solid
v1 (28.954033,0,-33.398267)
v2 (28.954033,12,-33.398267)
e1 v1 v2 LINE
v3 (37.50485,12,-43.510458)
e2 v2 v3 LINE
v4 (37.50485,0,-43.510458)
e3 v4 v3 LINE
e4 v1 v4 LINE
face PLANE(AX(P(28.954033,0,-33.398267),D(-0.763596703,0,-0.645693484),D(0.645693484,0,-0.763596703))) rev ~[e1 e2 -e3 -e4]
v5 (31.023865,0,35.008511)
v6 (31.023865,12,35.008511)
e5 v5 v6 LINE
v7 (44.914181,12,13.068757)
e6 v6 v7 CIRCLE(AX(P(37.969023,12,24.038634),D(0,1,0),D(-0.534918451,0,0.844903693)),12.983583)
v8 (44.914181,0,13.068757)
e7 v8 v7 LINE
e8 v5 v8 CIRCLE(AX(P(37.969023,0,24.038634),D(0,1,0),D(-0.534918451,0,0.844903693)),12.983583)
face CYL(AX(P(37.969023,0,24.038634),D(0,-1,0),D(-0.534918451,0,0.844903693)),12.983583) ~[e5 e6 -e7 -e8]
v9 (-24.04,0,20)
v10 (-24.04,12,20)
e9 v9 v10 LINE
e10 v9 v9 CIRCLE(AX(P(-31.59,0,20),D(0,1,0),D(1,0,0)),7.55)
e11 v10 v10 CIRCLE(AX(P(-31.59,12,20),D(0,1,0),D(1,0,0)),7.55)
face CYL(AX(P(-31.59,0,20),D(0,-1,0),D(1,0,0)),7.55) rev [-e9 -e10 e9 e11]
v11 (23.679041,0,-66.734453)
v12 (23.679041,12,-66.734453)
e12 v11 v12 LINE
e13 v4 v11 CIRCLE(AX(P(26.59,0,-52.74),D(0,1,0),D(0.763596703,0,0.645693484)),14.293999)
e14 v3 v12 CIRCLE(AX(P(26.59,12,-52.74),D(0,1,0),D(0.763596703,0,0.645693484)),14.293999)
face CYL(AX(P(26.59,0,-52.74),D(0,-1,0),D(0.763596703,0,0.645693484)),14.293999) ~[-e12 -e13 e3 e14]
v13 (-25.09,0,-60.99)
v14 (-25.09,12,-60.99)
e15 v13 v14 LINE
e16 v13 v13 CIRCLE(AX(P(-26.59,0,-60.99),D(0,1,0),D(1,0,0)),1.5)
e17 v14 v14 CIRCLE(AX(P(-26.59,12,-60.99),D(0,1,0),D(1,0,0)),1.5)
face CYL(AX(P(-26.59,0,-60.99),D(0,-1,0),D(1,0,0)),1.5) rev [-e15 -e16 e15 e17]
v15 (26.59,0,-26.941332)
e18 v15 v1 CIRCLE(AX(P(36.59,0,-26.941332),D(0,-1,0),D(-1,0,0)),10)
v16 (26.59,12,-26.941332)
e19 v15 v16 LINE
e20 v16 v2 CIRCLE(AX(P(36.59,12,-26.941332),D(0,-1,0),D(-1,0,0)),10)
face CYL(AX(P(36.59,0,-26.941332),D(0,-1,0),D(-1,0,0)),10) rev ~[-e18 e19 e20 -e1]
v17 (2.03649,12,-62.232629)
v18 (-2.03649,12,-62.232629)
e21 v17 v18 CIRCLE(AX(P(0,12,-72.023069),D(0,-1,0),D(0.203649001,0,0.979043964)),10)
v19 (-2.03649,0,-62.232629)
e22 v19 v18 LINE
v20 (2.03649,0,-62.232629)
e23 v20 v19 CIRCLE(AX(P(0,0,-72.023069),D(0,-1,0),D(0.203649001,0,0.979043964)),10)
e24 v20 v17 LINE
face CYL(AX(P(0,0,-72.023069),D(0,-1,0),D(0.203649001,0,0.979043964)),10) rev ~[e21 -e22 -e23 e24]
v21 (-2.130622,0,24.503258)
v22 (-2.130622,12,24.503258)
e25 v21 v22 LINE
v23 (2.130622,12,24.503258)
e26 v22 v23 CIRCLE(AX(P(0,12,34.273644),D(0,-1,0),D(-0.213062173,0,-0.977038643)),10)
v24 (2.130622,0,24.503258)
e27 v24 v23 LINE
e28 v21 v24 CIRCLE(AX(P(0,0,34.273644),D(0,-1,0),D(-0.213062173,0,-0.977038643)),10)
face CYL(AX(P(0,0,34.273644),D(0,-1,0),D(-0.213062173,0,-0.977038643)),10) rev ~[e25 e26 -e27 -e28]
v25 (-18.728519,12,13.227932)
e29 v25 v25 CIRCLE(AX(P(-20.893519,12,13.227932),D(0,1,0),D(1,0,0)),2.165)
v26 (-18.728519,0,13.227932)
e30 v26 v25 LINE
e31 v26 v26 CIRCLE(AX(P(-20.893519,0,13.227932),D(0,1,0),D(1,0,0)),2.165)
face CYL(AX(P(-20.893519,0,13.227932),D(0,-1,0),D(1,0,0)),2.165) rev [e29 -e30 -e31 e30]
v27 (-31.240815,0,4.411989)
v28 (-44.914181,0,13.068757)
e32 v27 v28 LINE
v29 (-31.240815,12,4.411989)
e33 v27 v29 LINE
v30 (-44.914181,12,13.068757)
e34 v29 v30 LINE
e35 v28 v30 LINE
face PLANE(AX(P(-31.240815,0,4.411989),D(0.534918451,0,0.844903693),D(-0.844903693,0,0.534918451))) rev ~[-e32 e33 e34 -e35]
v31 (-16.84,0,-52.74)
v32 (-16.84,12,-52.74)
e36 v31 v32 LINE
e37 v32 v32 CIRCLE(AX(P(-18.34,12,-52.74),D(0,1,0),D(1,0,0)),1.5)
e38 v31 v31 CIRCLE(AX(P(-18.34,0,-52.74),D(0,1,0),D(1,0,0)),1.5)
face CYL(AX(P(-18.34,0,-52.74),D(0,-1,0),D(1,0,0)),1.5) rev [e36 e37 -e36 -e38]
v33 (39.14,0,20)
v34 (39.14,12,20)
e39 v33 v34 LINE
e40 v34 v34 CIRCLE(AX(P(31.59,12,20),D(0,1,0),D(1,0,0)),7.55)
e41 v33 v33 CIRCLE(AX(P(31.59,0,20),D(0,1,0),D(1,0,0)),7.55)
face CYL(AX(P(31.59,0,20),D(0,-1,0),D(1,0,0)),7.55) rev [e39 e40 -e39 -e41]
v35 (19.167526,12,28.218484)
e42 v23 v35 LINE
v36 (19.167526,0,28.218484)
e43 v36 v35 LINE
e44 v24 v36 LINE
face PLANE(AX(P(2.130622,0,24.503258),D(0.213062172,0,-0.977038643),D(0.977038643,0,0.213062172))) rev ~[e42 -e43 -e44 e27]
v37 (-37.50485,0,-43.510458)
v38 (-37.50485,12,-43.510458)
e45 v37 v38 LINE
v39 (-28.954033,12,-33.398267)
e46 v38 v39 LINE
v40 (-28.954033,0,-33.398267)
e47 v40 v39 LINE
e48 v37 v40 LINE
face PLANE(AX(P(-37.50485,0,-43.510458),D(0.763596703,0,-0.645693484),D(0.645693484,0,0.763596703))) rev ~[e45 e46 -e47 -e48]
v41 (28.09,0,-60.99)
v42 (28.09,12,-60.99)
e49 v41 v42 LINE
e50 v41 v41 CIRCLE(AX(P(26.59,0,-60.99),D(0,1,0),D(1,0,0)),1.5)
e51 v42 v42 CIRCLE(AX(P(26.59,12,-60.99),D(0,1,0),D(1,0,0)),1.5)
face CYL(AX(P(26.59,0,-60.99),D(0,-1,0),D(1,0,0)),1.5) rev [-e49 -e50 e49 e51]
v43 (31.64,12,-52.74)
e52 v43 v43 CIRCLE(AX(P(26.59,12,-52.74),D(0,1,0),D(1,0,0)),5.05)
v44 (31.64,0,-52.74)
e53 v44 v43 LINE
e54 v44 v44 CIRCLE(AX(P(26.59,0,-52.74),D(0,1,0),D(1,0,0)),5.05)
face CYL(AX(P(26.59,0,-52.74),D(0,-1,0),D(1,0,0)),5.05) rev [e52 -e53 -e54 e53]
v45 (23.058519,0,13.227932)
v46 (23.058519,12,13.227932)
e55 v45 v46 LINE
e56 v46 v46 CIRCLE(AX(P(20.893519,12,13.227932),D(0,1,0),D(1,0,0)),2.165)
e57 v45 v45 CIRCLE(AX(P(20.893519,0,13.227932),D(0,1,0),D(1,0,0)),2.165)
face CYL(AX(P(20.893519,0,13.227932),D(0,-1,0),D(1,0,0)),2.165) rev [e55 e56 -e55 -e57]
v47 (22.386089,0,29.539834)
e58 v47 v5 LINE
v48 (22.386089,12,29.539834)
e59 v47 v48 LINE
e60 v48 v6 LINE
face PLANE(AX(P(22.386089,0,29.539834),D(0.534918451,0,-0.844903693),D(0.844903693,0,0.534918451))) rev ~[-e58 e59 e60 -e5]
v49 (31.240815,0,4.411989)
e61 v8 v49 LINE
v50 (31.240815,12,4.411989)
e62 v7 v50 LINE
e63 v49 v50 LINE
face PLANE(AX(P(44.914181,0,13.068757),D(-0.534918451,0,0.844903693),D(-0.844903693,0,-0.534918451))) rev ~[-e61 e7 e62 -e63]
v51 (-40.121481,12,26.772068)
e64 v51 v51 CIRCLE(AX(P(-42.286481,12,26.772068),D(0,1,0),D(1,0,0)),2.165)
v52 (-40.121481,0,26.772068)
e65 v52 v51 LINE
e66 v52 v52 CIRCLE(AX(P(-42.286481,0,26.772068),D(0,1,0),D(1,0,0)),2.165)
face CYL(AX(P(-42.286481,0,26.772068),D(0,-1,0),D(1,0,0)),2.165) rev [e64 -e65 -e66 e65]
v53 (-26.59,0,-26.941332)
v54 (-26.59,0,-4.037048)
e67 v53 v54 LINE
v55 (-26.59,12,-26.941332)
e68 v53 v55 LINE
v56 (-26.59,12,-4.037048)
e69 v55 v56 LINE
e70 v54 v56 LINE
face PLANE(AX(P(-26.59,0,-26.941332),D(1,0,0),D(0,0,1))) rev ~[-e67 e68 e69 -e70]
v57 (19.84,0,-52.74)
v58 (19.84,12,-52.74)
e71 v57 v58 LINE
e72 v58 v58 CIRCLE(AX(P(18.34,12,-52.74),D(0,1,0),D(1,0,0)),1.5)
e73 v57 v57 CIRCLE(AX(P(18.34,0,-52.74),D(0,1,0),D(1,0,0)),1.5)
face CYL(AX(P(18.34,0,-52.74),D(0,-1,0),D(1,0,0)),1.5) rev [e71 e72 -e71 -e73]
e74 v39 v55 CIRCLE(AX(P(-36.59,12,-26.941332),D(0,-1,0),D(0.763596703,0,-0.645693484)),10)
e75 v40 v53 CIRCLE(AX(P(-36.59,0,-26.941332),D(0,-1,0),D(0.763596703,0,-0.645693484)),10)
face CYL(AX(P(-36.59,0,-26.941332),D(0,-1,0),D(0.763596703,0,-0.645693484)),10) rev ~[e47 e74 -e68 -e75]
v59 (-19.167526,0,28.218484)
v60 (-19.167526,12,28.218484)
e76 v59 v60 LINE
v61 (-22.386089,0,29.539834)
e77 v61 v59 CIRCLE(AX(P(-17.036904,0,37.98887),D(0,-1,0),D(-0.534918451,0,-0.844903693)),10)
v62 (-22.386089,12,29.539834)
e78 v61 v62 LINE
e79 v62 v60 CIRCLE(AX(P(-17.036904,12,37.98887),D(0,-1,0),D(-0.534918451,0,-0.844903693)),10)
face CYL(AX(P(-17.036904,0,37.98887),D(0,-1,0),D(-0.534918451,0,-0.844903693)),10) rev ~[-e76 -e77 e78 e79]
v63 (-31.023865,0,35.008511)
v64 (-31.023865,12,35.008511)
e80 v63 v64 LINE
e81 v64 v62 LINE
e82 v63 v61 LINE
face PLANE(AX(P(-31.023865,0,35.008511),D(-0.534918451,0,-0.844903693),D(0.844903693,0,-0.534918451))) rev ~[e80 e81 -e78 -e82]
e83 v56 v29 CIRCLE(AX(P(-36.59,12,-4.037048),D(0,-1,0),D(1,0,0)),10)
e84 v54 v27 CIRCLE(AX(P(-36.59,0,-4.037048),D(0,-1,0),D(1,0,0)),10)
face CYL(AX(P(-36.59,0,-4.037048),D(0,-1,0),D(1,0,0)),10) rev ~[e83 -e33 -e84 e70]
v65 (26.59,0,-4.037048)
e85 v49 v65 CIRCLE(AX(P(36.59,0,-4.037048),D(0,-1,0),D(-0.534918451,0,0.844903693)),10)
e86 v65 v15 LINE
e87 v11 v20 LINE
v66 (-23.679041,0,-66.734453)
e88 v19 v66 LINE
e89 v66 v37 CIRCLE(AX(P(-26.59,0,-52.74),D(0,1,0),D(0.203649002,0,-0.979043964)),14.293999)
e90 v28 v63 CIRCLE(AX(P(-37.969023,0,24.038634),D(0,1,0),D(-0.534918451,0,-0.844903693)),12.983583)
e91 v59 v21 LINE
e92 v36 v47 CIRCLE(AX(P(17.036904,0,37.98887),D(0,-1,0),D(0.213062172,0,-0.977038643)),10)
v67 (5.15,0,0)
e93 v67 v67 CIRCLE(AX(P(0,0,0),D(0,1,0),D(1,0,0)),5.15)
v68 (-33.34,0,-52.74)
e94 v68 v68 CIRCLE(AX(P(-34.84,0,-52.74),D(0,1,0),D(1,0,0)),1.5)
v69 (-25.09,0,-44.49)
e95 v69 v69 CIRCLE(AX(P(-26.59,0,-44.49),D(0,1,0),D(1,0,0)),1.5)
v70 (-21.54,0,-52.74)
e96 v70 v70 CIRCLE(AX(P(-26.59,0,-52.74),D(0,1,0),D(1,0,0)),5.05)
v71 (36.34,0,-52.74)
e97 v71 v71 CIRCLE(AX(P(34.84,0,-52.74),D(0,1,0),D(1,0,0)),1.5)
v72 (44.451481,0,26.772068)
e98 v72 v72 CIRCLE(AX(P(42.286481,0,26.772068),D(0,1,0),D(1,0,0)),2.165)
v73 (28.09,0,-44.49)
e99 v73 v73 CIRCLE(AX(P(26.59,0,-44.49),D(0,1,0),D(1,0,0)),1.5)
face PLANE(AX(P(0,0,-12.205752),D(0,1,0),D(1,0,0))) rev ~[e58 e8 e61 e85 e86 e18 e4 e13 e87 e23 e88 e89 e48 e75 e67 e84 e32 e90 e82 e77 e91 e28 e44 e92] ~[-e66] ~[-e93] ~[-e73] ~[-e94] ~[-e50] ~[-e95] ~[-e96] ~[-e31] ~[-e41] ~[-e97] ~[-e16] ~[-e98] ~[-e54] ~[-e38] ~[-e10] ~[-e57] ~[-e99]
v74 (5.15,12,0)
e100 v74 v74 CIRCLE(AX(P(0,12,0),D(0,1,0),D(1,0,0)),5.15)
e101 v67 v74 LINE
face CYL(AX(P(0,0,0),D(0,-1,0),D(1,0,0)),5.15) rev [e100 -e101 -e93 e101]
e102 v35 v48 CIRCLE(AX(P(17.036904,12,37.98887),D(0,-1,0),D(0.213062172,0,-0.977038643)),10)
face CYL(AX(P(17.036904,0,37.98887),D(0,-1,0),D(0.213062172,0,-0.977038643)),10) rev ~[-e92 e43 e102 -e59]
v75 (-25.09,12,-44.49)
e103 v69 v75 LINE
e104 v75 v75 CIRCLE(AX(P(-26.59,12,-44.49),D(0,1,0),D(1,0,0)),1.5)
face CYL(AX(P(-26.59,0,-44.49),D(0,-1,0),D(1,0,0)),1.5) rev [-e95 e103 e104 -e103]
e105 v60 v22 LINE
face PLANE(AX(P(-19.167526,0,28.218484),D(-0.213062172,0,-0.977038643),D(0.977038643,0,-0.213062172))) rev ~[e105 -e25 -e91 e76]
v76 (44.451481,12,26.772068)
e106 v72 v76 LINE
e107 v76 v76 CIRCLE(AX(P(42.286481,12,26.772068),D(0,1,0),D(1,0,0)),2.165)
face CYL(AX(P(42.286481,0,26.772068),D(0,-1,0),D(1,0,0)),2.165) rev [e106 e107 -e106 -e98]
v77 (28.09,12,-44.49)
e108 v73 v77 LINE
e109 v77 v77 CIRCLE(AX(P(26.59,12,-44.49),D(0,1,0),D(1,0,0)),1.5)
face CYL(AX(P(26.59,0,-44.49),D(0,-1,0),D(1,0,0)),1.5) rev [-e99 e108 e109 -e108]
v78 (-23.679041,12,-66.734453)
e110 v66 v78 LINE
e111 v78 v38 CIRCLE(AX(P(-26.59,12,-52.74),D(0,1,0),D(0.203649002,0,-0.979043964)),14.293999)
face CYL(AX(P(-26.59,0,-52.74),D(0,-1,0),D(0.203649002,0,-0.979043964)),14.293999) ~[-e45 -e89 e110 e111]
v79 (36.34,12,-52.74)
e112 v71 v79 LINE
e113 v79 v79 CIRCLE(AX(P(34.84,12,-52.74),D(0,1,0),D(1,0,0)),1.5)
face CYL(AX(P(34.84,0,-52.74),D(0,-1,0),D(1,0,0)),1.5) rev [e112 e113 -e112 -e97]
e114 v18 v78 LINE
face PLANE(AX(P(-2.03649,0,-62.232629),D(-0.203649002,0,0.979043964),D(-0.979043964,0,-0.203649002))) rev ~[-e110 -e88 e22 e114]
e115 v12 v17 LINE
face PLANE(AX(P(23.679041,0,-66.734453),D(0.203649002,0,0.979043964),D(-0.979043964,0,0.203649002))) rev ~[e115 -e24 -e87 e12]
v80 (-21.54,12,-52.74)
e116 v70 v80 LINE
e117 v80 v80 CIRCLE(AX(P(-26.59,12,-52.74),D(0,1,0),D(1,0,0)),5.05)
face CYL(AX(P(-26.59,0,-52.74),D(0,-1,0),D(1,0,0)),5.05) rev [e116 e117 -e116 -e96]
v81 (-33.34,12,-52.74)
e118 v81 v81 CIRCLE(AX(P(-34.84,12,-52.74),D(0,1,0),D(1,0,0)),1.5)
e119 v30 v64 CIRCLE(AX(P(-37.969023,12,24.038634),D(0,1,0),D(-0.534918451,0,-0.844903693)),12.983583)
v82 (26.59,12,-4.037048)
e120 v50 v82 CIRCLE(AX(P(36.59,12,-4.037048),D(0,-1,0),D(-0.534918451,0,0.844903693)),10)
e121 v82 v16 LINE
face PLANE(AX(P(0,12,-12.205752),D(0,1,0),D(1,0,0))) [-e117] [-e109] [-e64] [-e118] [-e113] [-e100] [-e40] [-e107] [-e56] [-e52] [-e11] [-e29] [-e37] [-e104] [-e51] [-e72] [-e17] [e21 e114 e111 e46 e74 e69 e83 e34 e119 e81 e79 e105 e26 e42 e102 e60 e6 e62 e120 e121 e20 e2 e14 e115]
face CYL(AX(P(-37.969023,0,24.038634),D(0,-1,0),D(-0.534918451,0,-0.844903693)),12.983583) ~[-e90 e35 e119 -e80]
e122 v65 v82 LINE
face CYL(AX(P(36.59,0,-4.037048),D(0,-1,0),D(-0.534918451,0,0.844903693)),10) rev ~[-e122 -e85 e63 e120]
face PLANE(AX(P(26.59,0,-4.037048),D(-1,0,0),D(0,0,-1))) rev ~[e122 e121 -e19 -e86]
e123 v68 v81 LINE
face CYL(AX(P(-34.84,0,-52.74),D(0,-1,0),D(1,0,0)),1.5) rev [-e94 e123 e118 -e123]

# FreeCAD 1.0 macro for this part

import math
import FreeCAD as App
import Part
import Sketcher

V = App.Vector
Q = App.Units.Quantity

doc = App.newDocument("Part")
params = doc.addObject("Spreadsheet::Sheet", "Params")
for row, (alias, value) in enumerate([
    ("sketch1_diameter", "3 mm"),
    ("sketch1_radius", "10 mm"),
    ("sketch1_diameter2", "15.1 mm"),
    ("sketch1_diameter3", "10.3 mm"),
    ("sketch1_diameter4", "10.1 mm"),
    ("pad1_length", "12 mm"),
], start=1):
    params.set(f"A{row}", alias)
    params.set(f"B{row}", "=" + value)
    params.setAlias(f"B{row}", alias)

body = doc.addObject("PartDesign::Body", "Body")

# Sketch on XZ plane
sketch1 = body.newObject("Sketcher::SketchObject", "Sketch")
sketch1.AttachmentSupport = (doc.getObject("XZ_Plane"), [""])
sketch1.MapMode = "FlatFace"
sketch1.addGeometry([
    Part.LineSegment(V(-2, -62.2, 0), V(-23.7, -66.7, 0)),  # 0
    Part.ArcOfCircle(Part.Circle(V(-26.6, -52.7, 0), V(0, 0, 1), 14.3), math.radians(140), math.radians(282)),  # 1
    Part.LineSegment(V(-37.5, -43.5, 0), V(-29, -33.4, 0)),  # 2
    Part.ArcOfCircle(Part.Circle(V(-36.6, -26.9, 0), V(0, 0, 1), 10), math.radians(-40), math.radians(0)),  # 3
    Part.LineSegment(V(-26.6, -26.9, 0), V(-26.6, -4, 0)),  # 4
    Part.ArcOfCircle(Part.Circle(V(-36.6, -4, 0), V(0, 0, 1), 10), math.radians(0), math.radians(58)),  # 5
    Part.LineSegment(V(-31.2, 4.4, 0), V(-44.9, 13.1, 0)),  # 6
    Part.ArcOfCircle(Part.Circle(V(-38, 24, 0), V(0, 0, 1), 13), math.radians(58), math.radians(238)),  # 7
    Part.LineSegment(V(-31, 35, 0), V(-22.4, 29.5, 0)),  # 8
    Part.ArcOfCircle(Part.Circle(V(-17, 38, 0), V(0, 0, 1), 10), math.radians(-122), math.radians(-102)),  # 9
    Part.LineSegment(V(-19.2, 28.2, 0), V(-2.1, 24.5, 0)),  # 10
    Part.ArcOfCircle(Part.Circle(V(0, 34.3, 0), V(0, 0, 1), 10), math.radians(-102), math.radians(-78)),  # 11
    Part.LineSegment(V(2.1, 24.5, 0), V(19.2, 28.2, 0)),  # 12
    Part.ArcOfCircle(Part.Circle(V(17, 38, 0), V(0, 0, 1), 10), math.radians(-78), math.radians(-58)),  # 13
    Part.LineSegment(V(22.4, 29.5, 0), V(31, 35, 0)),  # 14
    Part.ArcOfCircle(Part.Circle(V(38, 24, 0), V(0, 0, 1), 13), math.radians(-58), math.radians(122)),  # 15
    Part.LineSegment(V(44.9, 13.1, 0), V(31.2, 4.4, 0)),  # 16
    Part.ArcOfCircle(Part.Circle(V(36.6, -4, 0), V(0, 0, 1), 10), math.radians(122), math.radians(180)),  # 17
    Part.LineSegment(V(26.6, -4, 0), V(26.6, -26.9, 0)),  # 18
    Part.ArcOfCircle(Part.Circle(V(36.6, -26.9, 0), V(0, 0, 1), 10), math.radians(180), math.radians(220)),  # 19
    Part.LineSegment(V(29, -33.4, 0), V(37.5, -43.5, 0)),  # 20
    Part.ArcOfCircle(Part.Circle(V(26.6, -52.7, 0), V(0, 0, 1), 14.3), math.radians(-102), math.radians(40)),  # 21
    Part.LineSegment(V(23.7, -66.7, 0), V(2, -62.2, 0)),  # 22
    Part.ArcOfCircle(Part.Circle(V(0, -72, 0), V(0, 0, 1), 10), math.radians(78), math.radians(102)),  # 23
    Part.Circle(V(-42.3, 26.8, 0), V(0, 0, 1), 2.2),  # 24
    Part.Circle(V(-31.6, 20, 0), V(0, 0, 1), 7.5),  # 25
    Part.Circle(V(-20.9, 13.2, 0), V(0, 0, 1), 2.2),  # 26
    Part.Circle(V(20.9, 13.2, 0), V(0, 0, 1), 2.2),  # 27
    Part.Circle(V(31.6, 20, 0), V(0, 0, 1), 7.5),  # 28
    Part.Circle(V(42.3, 26.8, 0), V(0, 0, 1), 2.2),  # 29
    Part.Circle(V(0, 0, 0), V(0, 0, 1), 5.2),  # 30
    Part.Circle(V(-26.6, -44.5, 0), V(0, 0, 1), 1.5),  # 31
    Part.Circle(V(-34.8, -52.7, 0), V(0, 0, 1), 1.5),  # 32
    Part.Circle(V(-26.6, -52.7, 0), V(0, 0, 1), 5),  # 33
    Part.Circle(V(-26.6, -61, 0), V(0, 0, 1), 1.5),  # 34
    Part.Circle(V(-18.3, -52.7, 0), V(0, 0, 1), 1.5),  # 35
    Part.Circle(V(18.3, -52.7, 0), V(0, 0, 1), 1.5),  # 36
    Part.Circle(V(26.6, -44.5, 0), V(0, 0, 1), 1.5),  # 37
    Part.Circle(V(26.6, -52.7, 0), V(0, 0, 1), 5),  # 38
    Part.Circle(V(26.6, -61, 0), V(0, 0, 1), 1.5),  # 39
    Part.Circle(V(34.8, -52.7, 0), V(0, 0, 1), 1.5),  # 40
], False)
sketch1.addConstraint([
    Sketcher.Constraint("Tangent", 0, 2, 1, 2),
    Sketcher.Constraint("Tangent", 1, 1, 2, 1),
    Sketcher.Constraint("Tangent", 2, 2, 3, 1),
    Sketcher.Constraint("Tangent", 3, 2, 4, 1),
    Sketcher.Constraint("Tangent", 4, 2, 5, 1),
    Sketcher.Constraint("Tangent", 5, 2, 6, 1),
    Sketcher.Constraint("Tangent", 6, 2, 7, 2),
    Sketcher.Constraint("Tangent", 7, 1, 8, 1),
    Sketcher.Constraint("Tangent", 8, 2, 9, 1),
    Sketcher.Constraint("Tangent", 9, 2, 10, 1),
    Sketcher.Constraint("Tangent", 10, 2, 11, 1),
    Sketcher.Constraint("Tangent", 11, 2, 12, 1),
    Sketcher.Constraint("Tangent", 12, 2, 13, 1),
    Sketcher.Constraint("Tangent", 13, 2, 14, 1),
    Sketcher.Constraint("Tangent", 14, 2, 15, 2),
    Sketcher.Constraint("Tangent", 15, 1, 16, 1),
    Sketcher.Constraint("Tangent", 16, 2, 17, 1),
    Sketcher.Constraint("Tangent", 17, 2, 18, 1),
    Sketcher.Constraint("Tangent", 18, 2, 19, 1),
    Sketcher.Constraint("Tangent", 19, 2, 20, 1),
    Sketcher.Constraint("Tangent", 20, 2, 21, 2),
    Sketcher.Constraint("Tangent", 21, 1, 22, 1),
    Sketcher.Constraint("Tangent", 22, 2, 23, 1),
    Sketcher.Constraint("Tangent", 23, 2, 0, 1),
    Sketcher.Constraint("Vertical", 4),
    Sketcher.Constraint("Vertical", 18),
    Sketcher.Constraint("Coincident", 30, 3, -1, 1),
    Sketcher.Constraint("Coincident", 33, 3, 1, 3),
    Sketcher.Constraint("Coincident", 38, 3, 21, 3),
    Sketcher.Constraint("Equal", 3, 5),
    Sketcher.Constraint("Equal", 5, 9),
    Sketcher.Constraint("Equal", 9, 11),
    Sketcher.Constraint("Equal", 11, 13),
    Sketcher.Constraint("Equal", 7, 15),
    Sketcher.Constraint("Equal", 13, 17),
    Sketcher.Constraint("Equal", 17, 19),
    Sketcher.Constraint("Equal", 1, 21),
    Sketcher.Constraint("Equal", 19, 23),
    Sketcher.Constraint("Equal", 24, 26),
    Sketcher.Constraint("Equal", 26, 27),
    Sketcher.Constraint("Equal", 25, 28),
    Sketcher.Constraint("Equal", 27, 29),
    Sketcher.Constraint("Equal", 31, 32),
    Sketcher.Constraint("Equal", 32, 34),
    Sketcher.Constraint("Equal", 34, 35),
    Sketcher.Constraint("Equal", 35, 36),
    Sketcher.Constraint("Equal", 36, 37),
    Sketcher.Constraint("Equal", 33, 38),
    Sketcher.Constraint("Equal", 37, 39),
    Sketcher.Constraint("Equal", 39, 40),
    Sketcher.Constraint("Symmetric", 9, 3, 13, 3, -2),
    Sketcher.Constraint("Symmetric", 7, 3, 15, 3, -2),
    Sketcher.Constraint("Symmetric", 5, 3, 17, 3, -2),
    Sketcher.Constraint("Symmetric", 1, 3, 21, 3, -2),
    Sketcher.Constraint("Symmetric", 26, 3, 27, 3, -2),
    Sketcher.Constraint("Symmetric", 25, 3, 28, 3, -2),
    Sketcher.Constraint("Symmetric", 24, 3, 29, 3, -2),
    Sketcher.Constraint("Symmetric", 35, 3, 36, 3, -2),
    Sketcher.Constraint("Symmetric", 31, 3, 37, 3, -2),
    Sketcher.Constraint("Symmetric", 34, 3, 39, 3, -2),
    Sketcher.Constraint("Symmetric", 32, 3, 40, 3, -2),
    Sketcher.Constraint("PointOnObject", 11, 3, -2),
    Sketcher.Constraint("PointOnObject", 23, 3, -2),
    Sketcher.Constraint("Parallel", 6, 8),
    Sketcher.Constraint("Horizontal", 3, 3, 19, 3),
    Sketcher.Constraint("Horizontal", 21, 3, 32, 3),
    Sketcher.Constraint("Horizontal", 33, 3, 35, 3),
    Sketcher.Constraint("Vertical", 1, 3, 31, 3),
    Sketcher.Constraint("Vertical", 33, 3, 34, 3),
    Sketcher.Constraint("Vertical", 34, 3, 3, 2),
    Sketcher.Constraint("Diameter", 31, Q("3 mm")),
    Sketcher.Constraint("Radius", 3, Q("10 mm")),
    Sketcher.Constraint("Diameter", 25, Q("15.1 mm")),
    Sketcher.Constraint("Diameter", 30, Q("10.3 mm")),
    Sketcher.Constraint("Diameter", 33, Q("10.1 mm")),
    Sketcher.Constraint("Diameter", 24, Q("4.33 mm")),
    Sketcher.Constraint("DistanceY", -1, 1, 25, 3, Q("20 mm")),
    Sketcher.Constraint("Radius", 1, Q("14.293999 mm")),
    Sketcher.Constraint("DistanceX", 5, 3, 25, 3, Q("5 mm")),
    Sketcher.Constraint("DistanceY", 34, 3, 31, 3, Q("16.5 mm")),
    Sketcher.Constraint("DistanceX", 32, 3, 35, 3, Q("16.5 mm")),
    Sketcher.Constraint("DistanceX", 1, 3, -1, 1, Q("26.59 mm")),
    Sketcher.Constraint("DistanceY", 1, 3, -1, 1, Q("52.74 mm")),
    Sketcher.Constraint("DistanceY", 31, 3, -1, 1, Q("44.49 mm")),
    Sketcher.Constraint("DistanceX", 32, 3, -1, 1, Q("34.84 mm")),
    Sketcher.Constraint("Radius", 7, Q("12.983583 mm")),
    Sketcher.Constraint("Distance", 0, Q("22.105801 mm")),
    Sketcher.Constraint("DistanceY", 3, 3, 24, 3, Q("53.7134 mm")),
    Sketcher.Constraint("DistanceY", 26, 3, 7, 3, Q("10.810702 mm")),
    Sketcher.Constraint("DistanceX", 6, 2, 24, 3, Q("2.6277 mm")),
    Sketcher.Constraint("DistanceY", 26, 3, 8, 2, Q("16.311901 mm")),
    Sketcher.Constraint("Distance", 6, Q("16.183342 mm")),
    Sketcher.Constraint("Distance", 10, Q("17.437288 mm")),
    Sketcher.Constraint("DistanceY", 4, 1, 4, 2, Q("22.904284 mm")),
    Sketcher.Constraint("DistanceY", -1, 1, 9, 3, Q("37.98887 mm")),
    Sketcher.Constraint("DistanceX", 24, 3, -1, 1, Q("42.286481 mm")),
    Sketcher.Constraint("DistanceX", 26, 3, -1, 1, Q("20.893519 mm")),
])
sketch1.setExpression("Constraints[70]", "Params.sketch1_diameter")
sketch1.setExpression("Constraints[71]", "Params.sketch1_radius")
sketch1.setExpression("Constraints[72]", "Params.sketch1_diameter2")
sketch1.setExpression("Constraints[73]", "Params.sketch1_diameter3")
sketch1.setExpression("Constraints[74]", "Params.sketch1_diameter4")
pad1 = body.newObject("PartDesign::Pad", "Pad")
pad1.Profile = sketch1
pad1.setExpression("Length", "Params.pad1_length")
pad1.Reversed = True

doc.recompute()
